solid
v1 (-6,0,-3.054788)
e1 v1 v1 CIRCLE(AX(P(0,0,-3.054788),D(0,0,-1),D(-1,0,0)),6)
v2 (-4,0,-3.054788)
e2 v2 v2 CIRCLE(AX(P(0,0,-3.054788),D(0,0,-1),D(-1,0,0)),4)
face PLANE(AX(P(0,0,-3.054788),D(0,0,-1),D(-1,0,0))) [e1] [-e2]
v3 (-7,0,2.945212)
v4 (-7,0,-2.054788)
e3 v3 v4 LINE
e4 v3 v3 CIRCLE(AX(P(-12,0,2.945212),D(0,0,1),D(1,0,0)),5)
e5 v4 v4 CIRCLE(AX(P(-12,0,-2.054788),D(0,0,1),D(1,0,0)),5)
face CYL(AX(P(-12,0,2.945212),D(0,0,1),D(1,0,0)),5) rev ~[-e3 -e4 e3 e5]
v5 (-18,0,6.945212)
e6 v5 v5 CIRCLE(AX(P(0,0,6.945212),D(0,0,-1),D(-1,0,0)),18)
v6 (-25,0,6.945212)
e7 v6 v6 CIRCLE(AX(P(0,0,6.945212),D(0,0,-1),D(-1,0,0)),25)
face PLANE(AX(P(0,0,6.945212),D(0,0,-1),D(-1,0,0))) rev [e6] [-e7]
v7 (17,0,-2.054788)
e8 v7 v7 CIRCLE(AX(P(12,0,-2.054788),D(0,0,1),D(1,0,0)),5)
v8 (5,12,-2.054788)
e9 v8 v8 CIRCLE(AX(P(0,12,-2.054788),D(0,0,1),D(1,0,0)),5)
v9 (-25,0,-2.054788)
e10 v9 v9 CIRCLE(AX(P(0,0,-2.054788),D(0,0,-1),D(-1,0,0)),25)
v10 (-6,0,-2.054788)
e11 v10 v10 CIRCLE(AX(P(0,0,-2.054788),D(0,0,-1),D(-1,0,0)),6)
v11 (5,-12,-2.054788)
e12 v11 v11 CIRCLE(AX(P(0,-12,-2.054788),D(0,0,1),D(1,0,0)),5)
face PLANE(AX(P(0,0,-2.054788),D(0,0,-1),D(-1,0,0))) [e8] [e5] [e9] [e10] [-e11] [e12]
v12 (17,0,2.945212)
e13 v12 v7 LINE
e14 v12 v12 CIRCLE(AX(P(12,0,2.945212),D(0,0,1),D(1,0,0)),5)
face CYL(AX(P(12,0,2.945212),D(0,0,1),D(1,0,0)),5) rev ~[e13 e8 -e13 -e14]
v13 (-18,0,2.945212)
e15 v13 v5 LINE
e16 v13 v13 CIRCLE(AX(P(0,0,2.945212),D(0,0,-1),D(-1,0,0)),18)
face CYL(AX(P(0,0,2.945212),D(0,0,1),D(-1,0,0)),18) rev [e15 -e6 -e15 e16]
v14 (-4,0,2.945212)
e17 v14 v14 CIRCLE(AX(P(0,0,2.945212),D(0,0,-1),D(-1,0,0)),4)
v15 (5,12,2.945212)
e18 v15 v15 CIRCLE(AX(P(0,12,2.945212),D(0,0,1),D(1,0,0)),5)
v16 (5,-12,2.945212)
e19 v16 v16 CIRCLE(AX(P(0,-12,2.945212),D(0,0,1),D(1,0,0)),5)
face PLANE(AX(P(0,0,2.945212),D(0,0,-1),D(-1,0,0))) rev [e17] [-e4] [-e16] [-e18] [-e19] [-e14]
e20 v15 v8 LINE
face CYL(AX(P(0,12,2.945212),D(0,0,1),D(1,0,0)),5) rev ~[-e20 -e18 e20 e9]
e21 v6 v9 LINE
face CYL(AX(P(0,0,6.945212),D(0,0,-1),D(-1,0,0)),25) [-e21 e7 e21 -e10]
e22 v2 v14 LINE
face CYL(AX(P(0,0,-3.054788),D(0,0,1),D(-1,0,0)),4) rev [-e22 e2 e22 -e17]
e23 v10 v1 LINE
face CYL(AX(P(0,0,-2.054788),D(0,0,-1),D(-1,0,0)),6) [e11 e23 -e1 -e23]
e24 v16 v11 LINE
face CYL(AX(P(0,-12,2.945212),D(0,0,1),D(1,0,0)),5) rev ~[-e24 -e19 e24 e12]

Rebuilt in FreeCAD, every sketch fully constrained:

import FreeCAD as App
import Part
import Sketcher
from FreeCAD import Vector


def add_polygon(sketch, points):
    """Adds a closed chain of lines whose ends are joined by coincident constraints."""
    first, n = sketch.GeometryCount, len(points)
    for a, b in zip(points, points[1:] + points[:1]):
        sketch.addGeometry(Part.LineSegment(App.Vector(*a, 0), App.Vector(*b, 0)), False)
    for i in range(n):
        sketch.addConstraint(Sketcher.Constraint("Coincident", first + i, 2, first + (i + 1) % n, 1))

doc = App.newDocument("Part")
body = doc.addObject("PartDesign::Body", "Body")

sketch1 = doc.addObject("Sketcher::SketchObject", "Sketch")
body.addObject(sketch1)
sketch1.AttachmentSupport = (doc.XZ_Plane, [""])
sketch1.MapMode = "FlatFace"
add_polygon(sketch1, [(-6, -3.054788), (-4, -3.054788), (-4, 2.945212), (-18, 2.945212), (-18, 6.945212), (-25, 6.945212), (-25, -2.054788), (-6, -2.054788)])
sketch1.addConstraint([
    Sketcher.Constraint("Horizontal", 0),
    Sketcher.Constraint("Vertical", 1),
    Sketcher.Constraint("Horizontal", 2),
    Sketcher.Constraint("Vertical", 3),
    Sketcher.Constraint("Horizontal", 4),
    Sketcher.Constraint("Vertical", 5),
    Sketcher.Constraint("Horizontal", 6),
    Sketcher.Constraint("Vertical", 7),
    Sketcher.Constraint("DistanceX", 0, 1, 0, 2, 2.0),
    Sketcher.Constraint("DistanceX", 2, 2, 2, 1, 14.0),
    Sketcher.Constraint("DistanceX", 4, 2, 4, 1, 7.0),
    Sketcher.Constraint("DistanceY", 1, 1, 1, 2, 6.0),
    Sketcher.Constraint("DistanceY", 3, 1, 3, 2, 4.0),
    Sketcher.Constraint("DistanceY", 5, 2, 5, 1, 9.0),
    Sketcher.Constraint("DistanceX", 0, 2, -1, 1, 4.0),
    Sketcher.Constraint("DistanceY", -1, 1, 3, 2, 6.945212),
])
revolution = doc.addObject("PartDesign::Revolution", "Revolution")
body.addObject(revolution)
revolution.Profile = sketch1
revolution.ReferenceAxis = (sketch1, ["V_Axis"])
revolution.Angle = 360

sketch2 = doc.addObject("Sketcher::SketchObject", "Sketch001")
body.addObject(sketch2)
sketch2.AttachmentSupport = (doc.XY_Plane, [""])
sketch2.MapMode = "FlatFace"
sketch2.AttachmentOffset = App.Placement(Vector(0, 0, 2.945212), App.Rotation())
sketch2.addGeometry([
    Part.Circle(Vector(-12, 0, 0), Vector(0, 0, 1), 5),
    Part.Circle(Vector(0, 12, 0), Vector(0, 0, 1), 5),
    Part.Circle(Vector(12, 0, 0), Vector(0, 0, 1), 5),
    Part.Circle(Vector(0, -12, 0), Vector(0, 0, 1), 5),
], False)
sketch2.addConstraint([
    Sketcher.Constraint("Equal", 0, 1),
    Sketcher.Constraint("Equal", 1, 2),
    Sketcher.Constraint("Equal", 2, 3),
    Sketcher.Constraint("Symmetric", 0, 3, 2, 3, -1, 1),
    Sketcher.Constraint("Symmetric", 1, 3, 3, 3, -1, 1),
    Sketcher.Constraint("PointOnObject", 0, 3, -1),
    Sketcher.Constraint("PointOnObject", 1, 3, -2),
    Sketcher.Constraint("Diameter", 0, 10.0),
    Sketcher.Constraint("DistanceX", 0, 3, -1, 1, 12.0),
    Sketcher.Constraint("DistanceY", -1, 1, 1, 3, 12.0),
])
pocket1 = doc.addObject("PartDesign::Pocket", "Pocket")
body.addObject(pocket1)
pocket1.Profile = sketch2
pocket1.Type = "ThroughAll"

doc.recompute()
